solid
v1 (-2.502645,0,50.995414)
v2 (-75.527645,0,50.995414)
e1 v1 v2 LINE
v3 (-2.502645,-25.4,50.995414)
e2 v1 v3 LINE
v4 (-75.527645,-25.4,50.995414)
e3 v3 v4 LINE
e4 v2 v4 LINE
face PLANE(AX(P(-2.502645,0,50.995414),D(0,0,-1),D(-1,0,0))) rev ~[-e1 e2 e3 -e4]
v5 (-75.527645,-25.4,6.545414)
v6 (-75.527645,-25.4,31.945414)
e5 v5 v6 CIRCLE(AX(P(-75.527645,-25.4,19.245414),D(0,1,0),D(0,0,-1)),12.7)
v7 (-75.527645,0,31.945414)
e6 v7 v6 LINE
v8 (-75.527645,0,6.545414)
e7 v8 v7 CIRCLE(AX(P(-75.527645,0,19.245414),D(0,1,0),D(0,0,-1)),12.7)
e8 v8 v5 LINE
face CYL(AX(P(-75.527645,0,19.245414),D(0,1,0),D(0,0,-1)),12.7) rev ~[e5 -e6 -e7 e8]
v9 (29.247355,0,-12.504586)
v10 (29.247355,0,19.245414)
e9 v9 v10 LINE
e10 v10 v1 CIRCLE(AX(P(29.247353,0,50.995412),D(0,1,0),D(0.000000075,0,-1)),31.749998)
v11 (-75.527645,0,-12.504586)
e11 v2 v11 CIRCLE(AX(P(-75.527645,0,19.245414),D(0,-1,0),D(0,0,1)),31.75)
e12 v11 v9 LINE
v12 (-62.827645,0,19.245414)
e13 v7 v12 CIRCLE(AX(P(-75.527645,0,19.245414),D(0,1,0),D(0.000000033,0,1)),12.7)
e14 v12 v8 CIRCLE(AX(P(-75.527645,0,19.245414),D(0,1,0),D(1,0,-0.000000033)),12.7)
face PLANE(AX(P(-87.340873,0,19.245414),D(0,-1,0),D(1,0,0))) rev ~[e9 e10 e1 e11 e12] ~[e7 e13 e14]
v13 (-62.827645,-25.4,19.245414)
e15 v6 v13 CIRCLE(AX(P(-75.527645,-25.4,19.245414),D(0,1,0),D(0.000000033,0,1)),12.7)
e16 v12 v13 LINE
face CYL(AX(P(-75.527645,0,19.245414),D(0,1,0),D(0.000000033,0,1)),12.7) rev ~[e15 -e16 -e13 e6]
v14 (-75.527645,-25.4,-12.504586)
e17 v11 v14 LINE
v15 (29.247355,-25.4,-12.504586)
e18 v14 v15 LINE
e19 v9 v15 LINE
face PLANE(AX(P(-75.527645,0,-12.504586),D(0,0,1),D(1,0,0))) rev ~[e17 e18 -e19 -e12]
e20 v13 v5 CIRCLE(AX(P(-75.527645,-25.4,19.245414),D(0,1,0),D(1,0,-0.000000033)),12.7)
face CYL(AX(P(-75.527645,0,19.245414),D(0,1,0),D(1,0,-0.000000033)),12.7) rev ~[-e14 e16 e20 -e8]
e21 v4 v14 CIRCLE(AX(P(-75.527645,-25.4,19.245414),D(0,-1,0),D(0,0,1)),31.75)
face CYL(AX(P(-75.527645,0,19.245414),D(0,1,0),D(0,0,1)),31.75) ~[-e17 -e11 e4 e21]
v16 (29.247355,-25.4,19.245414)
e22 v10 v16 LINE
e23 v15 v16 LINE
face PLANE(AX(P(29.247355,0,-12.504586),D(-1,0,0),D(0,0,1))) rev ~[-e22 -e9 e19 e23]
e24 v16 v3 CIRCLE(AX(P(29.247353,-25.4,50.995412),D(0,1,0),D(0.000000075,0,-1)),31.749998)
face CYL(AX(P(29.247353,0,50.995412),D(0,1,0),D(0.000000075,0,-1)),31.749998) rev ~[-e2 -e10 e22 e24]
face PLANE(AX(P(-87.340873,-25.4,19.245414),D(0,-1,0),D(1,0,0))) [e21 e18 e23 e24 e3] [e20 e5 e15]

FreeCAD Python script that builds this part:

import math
import FreeCAD as App
import Part
import Sketcher
Q = App.Units.Quantity

doc = App.newDocument("Part")
body = doc.addObject("PartDesign::Body", "Body")

# Sketch on XZ plane
sketch1 = body.newObject("Sketcher::SketchObject", "Sketch")
sketch1.AttachmentSupport = (doc.getObject("XZ_Plane"), [""])
sketch1.MapMode = "FlatFace"
sketch1.addGeometry([
    Part.ArcOfCircle(Part.Circle(App.Vector(-76, 19, 0), App.Vector(0, 0, 1), 32), math.radians(90), math.radians(270)),  # 0
    Part.LineSegment(App.Vector(-76, -13, 0), App.Vector(29, -13, 0)),  # 1
    Part.LineSegment(App.Vector(29, -13, 0), App.Vector(29, 19, 0)),  # 2
    Part.ArcOfCircle(Part.Circle(App.Vector(29, 51, 0), App.Vector(0, 0, 1), 32), math.radians(180), math.radians(270)),  # 3
    Part.LineSegment(App.Vector(-3, 51, 0), App.Vector(-76, 51, 0)),  # 4
    Part.ArcOfCircle(Part.Circle(App.Vector(-76, 19, 0), App.Vector(0, 0, 1), 13), math.radians(90), math.radians(270)),  # 5
    Part.ArcOfCircle(Part.Circle(App.Vector(-76, 19, 0), App.Vector(0, 0, 1), 13), math.radians(0), math.radians(90)),  # 6
    Part.ArcOfCircle(Part.Circle(App.Vector(-76, 19, 0), App.Vector(0, 0, 1), 13), math.radians(-90), math.radians(0)),  # 7
], False)
sketch1.addConstraint([
    Sketcher.Constraint("Tangent", 0, 2, 1, 1),
    Sketcher.Constraint("Coincident", 1, 2, 2, 1),
    Sketcher.Constraint("Coincident", 2, 2, 3, 2),
    Sketcher.Constraint("Coincident", 3, 1, 4, 1),
    Sketcher.Constraint("Tangent", 4, 2, 0, 1),
    Sketcher.Constraint("Tangent", 5, 1, 6, 2),
    Sketcher.Constraint("Tangent", 6, 1, 7, 2),
    Sketcher.Constraint("Tangent", 7, 1, 5, 2),
    Sketcher.Constraint("Horizontal", 1),
    Sketcher.Constraint("Vertical", 2),
    Sketcher.Constraint("Horizontal", 4),
    Sketcher.Constraint("Coincident", 5, 3, 0, 3),
    Sketcher.Constraint("Horizontal", 7, 3, 2, 2),
    Sketcher.Constraint("Horizontal", 2, 2, 6, 1),
    Sketcher.Constraint("Vertical", 4, 2, 5, 1),
    Sketcher.Constraint("Vertical", 5, 1, 7, 1),
    Sketcher.Constraint("Radius", 5, Q("0.5 in")),
    Sketcher.Constraint("Radius", 0, Q("1.25 in")),
    Sketcher.Constraint("Radius", 3, Q("1.2499999 in")),
    Sketcher.Constraint("DistanceX", 1, 1, 1, 2, Q("4.125 in")),
    Sketcher.Constraint("DistanceX", 4, 2, 4, 1, Q("2.875 in")),
    Sketcher.Constraint("DistanceY", -1, 1, 3, 3, Q("50.995412 mm")),
    Sketcher.Constraint("DistanceX", 0, 3, -1, 1, Q("75.527645 mm")),
])
pad1 = body.newObject("PartDesign::Pad", "Pad")
pad1.Profile = sketch1
pad1.Length = Q("1 in")

doc.recompute()
